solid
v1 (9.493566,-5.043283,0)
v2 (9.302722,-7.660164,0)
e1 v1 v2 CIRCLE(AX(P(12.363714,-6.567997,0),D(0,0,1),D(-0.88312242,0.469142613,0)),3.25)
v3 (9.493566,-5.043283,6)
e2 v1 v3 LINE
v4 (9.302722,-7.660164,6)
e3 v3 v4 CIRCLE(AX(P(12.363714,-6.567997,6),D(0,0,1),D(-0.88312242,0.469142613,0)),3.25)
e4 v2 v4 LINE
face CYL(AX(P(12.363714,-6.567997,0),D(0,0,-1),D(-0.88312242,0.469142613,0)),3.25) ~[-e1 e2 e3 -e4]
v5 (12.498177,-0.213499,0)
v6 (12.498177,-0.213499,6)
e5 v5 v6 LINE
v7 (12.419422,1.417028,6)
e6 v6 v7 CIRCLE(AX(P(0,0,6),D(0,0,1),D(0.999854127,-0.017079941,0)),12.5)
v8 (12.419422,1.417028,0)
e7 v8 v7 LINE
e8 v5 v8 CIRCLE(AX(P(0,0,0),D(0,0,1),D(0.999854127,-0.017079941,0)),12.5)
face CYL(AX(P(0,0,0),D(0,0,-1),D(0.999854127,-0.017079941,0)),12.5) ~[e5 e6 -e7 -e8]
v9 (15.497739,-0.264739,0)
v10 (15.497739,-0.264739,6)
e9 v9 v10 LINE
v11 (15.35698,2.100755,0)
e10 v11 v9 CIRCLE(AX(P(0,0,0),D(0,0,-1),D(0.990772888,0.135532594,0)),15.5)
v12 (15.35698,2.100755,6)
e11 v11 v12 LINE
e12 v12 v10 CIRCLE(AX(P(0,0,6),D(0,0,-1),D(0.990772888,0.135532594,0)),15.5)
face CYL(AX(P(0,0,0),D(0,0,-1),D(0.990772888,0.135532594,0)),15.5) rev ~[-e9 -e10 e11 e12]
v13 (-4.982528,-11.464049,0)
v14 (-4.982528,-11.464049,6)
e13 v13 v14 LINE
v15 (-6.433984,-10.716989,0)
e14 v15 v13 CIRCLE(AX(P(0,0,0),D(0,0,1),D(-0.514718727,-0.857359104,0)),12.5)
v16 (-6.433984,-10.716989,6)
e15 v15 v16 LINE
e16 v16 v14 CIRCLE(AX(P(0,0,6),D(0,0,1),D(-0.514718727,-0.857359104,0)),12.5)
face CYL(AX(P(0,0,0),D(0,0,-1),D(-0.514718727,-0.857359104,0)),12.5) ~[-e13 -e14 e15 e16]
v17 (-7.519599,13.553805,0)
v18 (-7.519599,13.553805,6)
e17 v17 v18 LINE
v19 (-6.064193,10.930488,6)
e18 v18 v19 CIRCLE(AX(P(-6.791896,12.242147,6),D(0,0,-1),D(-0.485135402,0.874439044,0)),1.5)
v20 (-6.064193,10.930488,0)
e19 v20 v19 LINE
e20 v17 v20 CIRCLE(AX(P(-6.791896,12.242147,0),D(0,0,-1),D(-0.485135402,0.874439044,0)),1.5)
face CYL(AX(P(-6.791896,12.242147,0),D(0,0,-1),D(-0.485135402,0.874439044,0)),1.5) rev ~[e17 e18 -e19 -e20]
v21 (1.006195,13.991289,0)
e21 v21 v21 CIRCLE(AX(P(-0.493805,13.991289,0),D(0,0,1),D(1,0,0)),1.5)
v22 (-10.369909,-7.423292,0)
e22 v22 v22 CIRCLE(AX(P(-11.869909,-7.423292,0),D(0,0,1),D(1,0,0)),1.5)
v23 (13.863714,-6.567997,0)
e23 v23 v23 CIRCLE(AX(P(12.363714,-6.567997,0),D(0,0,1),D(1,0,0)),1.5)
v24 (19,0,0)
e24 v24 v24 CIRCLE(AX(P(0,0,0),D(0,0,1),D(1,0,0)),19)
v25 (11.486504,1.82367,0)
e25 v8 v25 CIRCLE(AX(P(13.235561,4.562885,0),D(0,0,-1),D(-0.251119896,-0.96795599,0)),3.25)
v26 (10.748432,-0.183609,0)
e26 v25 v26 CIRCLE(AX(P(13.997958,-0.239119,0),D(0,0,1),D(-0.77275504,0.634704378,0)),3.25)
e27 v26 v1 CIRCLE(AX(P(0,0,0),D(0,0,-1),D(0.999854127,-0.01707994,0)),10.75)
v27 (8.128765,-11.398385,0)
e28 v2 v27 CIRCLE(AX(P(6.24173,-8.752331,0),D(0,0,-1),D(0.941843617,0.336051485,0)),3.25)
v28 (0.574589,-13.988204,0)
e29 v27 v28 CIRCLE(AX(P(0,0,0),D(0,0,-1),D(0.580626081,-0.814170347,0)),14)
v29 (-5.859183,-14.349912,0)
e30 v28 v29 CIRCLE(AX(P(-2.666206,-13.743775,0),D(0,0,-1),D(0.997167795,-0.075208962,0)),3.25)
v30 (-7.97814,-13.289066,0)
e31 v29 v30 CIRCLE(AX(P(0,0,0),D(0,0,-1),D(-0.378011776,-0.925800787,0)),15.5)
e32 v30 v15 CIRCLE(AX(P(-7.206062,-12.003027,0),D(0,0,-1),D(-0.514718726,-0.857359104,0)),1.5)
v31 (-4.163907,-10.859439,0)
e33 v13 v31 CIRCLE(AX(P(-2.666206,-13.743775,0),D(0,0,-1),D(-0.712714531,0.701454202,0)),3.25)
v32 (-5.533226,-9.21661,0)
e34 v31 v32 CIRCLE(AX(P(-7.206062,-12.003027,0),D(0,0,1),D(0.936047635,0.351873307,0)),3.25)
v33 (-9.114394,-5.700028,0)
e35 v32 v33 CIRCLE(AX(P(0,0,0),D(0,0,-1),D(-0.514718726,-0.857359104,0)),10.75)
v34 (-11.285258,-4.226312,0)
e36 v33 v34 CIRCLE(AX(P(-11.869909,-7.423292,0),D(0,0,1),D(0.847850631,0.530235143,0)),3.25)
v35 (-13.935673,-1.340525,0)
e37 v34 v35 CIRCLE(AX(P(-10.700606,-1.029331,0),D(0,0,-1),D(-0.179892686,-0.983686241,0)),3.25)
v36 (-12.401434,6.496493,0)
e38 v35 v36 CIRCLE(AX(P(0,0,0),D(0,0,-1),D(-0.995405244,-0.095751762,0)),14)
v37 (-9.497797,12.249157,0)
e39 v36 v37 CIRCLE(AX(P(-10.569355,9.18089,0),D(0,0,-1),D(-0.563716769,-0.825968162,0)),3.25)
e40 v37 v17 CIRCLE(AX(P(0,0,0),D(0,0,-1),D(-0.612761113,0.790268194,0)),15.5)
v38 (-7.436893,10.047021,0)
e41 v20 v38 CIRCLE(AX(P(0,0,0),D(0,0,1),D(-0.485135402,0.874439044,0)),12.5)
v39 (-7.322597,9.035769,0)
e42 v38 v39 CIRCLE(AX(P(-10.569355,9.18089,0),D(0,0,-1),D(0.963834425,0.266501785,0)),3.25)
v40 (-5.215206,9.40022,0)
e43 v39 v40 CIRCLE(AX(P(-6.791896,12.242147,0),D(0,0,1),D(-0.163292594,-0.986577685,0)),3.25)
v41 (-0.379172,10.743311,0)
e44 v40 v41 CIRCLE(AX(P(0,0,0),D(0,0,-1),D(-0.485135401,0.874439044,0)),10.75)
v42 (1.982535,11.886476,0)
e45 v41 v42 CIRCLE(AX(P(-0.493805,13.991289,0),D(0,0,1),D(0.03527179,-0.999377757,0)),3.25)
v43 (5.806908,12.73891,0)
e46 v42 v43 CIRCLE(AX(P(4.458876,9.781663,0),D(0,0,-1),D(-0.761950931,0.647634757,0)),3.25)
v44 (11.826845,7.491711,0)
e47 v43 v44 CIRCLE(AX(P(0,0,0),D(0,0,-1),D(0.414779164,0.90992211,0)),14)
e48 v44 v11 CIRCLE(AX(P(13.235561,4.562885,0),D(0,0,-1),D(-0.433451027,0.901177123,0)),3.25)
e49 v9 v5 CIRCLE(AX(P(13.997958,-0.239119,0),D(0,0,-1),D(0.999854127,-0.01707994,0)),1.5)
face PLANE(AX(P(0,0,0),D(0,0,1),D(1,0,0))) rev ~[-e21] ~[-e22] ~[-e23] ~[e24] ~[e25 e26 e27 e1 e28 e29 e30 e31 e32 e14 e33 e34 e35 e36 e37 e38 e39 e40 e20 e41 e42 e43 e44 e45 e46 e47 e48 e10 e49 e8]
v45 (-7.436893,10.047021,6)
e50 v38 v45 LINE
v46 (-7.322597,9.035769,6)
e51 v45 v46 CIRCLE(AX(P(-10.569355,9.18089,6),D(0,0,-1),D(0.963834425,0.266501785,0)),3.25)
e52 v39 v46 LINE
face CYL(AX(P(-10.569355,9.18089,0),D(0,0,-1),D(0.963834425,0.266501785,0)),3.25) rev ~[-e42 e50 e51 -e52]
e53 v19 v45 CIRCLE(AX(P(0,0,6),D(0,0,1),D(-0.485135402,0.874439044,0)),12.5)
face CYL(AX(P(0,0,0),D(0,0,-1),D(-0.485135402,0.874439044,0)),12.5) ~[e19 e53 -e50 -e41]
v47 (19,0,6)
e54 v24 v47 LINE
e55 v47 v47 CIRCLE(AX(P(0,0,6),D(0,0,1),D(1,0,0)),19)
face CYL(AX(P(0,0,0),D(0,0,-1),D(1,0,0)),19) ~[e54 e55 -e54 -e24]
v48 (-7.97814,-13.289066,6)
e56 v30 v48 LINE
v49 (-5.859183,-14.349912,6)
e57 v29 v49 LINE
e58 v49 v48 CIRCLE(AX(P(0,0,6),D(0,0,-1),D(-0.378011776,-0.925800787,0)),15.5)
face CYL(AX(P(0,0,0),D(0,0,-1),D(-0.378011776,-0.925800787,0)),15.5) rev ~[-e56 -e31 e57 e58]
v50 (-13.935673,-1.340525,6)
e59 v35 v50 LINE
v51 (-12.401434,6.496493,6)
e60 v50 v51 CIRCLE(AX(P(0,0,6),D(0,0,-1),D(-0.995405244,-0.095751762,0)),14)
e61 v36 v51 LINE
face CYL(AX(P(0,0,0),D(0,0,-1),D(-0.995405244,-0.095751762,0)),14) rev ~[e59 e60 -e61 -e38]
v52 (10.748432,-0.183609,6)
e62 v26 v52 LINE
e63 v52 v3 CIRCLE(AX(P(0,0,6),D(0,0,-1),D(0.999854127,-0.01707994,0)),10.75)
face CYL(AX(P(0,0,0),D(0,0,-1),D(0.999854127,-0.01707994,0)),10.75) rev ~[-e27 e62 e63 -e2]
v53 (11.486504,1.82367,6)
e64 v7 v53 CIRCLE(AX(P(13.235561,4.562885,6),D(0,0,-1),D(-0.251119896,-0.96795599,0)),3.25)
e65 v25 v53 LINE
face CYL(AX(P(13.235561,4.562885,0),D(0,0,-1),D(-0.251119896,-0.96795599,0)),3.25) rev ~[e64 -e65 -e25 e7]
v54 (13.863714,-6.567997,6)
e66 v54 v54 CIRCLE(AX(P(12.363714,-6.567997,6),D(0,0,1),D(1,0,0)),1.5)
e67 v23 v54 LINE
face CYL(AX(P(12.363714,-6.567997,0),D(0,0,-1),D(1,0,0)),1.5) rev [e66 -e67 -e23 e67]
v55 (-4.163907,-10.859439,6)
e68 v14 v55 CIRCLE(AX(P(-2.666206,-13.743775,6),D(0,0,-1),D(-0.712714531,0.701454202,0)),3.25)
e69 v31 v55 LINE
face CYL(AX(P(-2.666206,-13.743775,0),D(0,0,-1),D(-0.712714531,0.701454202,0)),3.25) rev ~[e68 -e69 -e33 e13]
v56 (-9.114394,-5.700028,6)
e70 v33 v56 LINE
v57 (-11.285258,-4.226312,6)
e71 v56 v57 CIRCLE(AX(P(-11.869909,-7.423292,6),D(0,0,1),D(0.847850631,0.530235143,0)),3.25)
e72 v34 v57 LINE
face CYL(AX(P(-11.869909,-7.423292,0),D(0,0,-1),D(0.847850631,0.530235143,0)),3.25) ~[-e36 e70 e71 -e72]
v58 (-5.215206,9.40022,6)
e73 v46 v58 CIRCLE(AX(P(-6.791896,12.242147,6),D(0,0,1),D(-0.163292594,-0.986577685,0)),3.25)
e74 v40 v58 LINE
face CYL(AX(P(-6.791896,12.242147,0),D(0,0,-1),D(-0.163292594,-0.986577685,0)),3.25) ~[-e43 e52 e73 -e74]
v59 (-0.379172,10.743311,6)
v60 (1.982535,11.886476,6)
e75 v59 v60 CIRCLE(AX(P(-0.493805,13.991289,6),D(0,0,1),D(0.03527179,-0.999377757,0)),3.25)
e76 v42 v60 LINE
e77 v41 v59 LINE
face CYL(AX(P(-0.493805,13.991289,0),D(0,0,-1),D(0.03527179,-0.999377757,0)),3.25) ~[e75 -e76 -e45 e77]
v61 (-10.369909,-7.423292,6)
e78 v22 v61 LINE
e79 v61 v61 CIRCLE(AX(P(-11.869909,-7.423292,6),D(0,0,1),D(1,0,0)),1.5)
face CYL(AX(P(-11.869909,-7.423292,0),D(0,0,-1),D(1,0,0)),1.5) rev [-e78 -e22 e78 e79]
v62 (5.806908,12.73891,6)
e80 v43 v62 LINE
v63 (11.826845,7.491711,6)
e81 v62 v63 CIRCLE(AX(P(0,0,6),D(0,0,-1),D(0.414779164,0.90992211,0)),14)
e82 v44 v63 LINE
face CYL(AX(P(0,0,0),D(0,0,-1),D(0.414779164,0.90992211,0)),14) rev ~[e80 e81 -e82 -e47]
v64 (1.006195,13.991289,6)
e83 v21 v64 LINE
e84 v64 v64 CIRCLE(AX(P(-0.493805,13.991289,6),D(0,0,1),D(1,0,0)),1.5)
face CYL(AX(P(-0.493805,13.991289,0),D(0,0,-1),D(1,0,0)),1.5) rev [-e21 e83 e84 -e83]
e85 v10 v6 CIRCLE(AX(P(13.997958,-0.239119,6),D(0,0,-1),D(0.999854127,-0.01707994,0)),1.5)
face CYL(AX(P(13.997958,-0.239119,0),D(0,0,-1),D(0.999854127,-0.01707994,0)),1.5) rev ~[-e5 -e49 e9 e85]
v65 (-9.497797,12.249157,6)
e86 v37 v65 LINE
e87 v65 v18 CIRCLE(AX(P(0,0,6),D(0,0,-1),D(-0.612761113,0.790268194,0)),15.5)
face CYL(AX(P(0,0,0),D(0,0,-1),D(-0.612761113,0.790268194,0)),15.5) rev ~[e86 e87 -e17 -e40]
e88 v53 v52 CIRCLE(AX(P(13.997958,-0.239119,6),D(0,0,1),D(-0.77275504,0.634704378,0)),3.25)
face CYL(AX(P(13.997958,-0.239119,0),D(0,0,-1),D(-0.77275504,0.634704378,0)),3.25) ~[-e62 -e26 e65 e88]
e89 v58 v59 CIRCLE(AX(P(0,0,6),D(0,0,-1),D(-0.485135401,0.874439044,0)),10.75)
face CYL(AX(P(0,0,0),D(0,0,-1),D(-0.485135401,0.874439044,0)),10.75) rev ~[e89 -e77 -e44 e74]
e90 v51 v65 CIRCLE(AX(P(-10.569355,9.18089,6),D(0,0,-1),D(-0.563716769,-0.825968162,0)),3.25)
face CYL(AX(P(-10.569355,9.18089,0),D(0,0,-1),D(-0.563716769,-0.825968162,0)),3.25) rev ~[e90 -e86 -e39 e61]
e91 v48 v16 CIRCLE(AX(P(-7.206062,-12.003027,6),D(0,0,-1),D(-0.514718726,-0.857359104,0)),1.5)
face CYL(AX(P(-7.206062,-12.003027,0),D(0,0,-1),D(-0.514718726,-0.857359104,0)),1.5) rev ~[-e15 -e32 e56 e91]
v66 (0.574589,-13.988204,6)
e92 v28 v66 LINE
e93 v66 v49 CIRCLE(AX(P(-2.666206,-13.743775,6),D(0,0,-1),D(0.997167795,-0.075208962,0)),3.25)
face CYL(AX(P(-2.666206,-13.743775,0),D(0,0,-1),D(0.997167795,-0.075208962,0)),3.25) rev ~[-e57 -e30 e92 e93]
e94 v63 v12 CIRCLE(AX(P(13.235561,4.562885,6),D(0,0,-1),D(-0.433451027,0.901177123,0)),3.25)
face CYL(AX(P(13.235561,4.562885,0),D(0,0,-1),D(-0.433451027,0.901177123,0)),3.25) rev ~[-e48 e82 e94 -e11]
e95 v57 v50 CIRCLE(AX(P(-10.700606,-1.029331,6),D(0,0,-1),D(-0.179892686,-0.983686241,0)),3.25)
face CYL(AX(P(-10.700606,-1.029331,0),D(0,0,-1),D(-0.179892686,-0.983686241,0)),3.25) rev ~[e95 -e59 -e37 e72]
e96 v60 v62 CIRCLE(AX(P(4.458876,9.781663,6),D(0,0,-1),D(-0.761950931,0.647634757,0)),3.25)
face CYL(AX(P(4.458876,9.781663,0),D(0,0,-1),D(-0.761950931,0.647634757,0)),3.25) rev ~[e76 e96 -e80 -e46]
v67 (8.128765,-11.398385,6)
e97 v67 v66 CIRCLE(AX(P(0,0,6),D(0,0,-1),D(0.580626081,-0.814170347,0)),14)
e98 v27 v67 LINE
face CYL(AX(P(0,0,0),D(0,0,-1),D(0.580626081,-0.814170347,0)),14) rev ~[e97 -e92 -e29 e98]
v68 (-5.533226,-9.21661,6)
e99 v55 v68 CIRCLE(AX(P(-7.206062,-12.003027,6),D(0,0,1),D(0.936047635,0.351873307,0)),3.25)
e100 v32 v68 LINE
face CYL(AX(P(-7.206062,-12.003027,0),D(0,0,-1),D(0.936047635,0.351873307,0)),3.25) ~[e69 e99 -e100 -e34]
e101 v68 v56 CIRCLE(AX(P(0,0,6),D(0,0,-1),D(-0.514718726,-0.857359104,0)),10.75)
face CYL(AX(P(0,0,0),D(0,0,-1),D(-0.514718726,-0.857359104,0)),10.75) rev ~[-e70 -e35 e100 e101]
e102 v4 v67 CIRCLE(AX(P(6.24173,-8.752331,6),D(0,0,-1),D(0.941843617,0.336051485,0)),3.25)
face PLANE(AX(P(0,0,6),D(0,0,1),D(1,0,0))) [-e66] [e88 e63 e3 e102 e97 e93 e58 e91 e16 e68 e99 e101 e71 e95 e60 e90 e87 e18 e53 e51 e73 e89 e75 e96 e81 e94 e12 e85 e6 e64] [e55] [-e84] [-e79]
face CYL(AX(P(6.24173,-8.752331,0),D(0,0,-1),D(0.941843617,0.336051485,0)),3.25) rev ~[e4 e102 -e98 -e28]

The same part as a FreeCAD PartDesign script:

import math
import FreeCAD as App
import Part
import Sketcher
from FreeCAD import Vector

doc = App.newDocument("Part")
body = doc.addObject("PartDesign::Body", "Body")

# Sketch on XY plane
sketch1 = doc.addObject("Sketcher::SketchObject", "Sketch")
body.addObject(sketch1)
sketch1.AttachmentSupport = (doc.XY_Plane, [""])
sketch1.MapMode = "FlatFace"
sketch1.addGeometry(Part.Circle(Vector(0, 0, 0), Vector(0, 0, 1), 19), False)
sketch1.addGeometry(Part.Circle(Vector(-11.9, -7.4, 0), Vector(0, 0, 1), 1.5), False)
sketch1.addGeometry(Part.ArcOfCircle(Part.Circle(Vector(0, 0, 0), Vector(0, 0, 1), 10.8), math.radians(92), math.radians(119)), False)
sketch1.addGeometry(Part.ArcOfCircle(Part.Circle(Vector(-0.5, 14, 0), Vector(0, 0, 1), 3.3), math.radians(-88), math.radians(-40)), False)
sketch1.addGeometry(Part.ArcOfCircle(Part.Circle(Vector(4.5, 9.8, 0), Vector(0, 0, 1), 3.3), math.radians(65), math.radians(140)), False)
sketch1.addGeometry(Part.ArcOfCircle(Part.Circle(Vector(0, 0, 0), Vector(0, 0, 1), 14), math.radians(32), math.radians(65)), False)
sketch1.addGeometry(Part.ArcOfCircle(Part.Circle(Vector(13.2, 4.6, 0), Vector(0, 0, 1), 3.2), math.radians(-49), math.radians(116)), False)
sketch1.addGeometry(Part.ArcOfCircle(Part.Circle(Vector(0, 0, 0), Vector(0, 0, 1), 15.5), math.radians(-0.98), math.radians(7.79)), False)
sketch1.addGeometry(Part.ArcOfCircle(Part.Circle(Vector(14, -0.2, 0), Vector(0, 0, 1), 1.5), math.radians(179), math.radians(359)), False)
sketch1.addGeometry(Part.ArcOfCircle(Part.Circle(Vector(0, 0, 0), Vector(0, 0, 1), 12.5), math.radians(-0.98), math.radians(6.51)), False)
sketch1.addGeometry(Part.ArcOfCircle(Part.Circle(Vector(13.2, 4.6, 0), Vector(0, 0, 1), 3.3), math.radians(-122.56), math.radians(-104.54)), False)
sketch1.addGeometry(Part.ArcOfCircle(Part.Circle(Vector(14, -0.2, 0), Vector(0, 0, 1), 3.2), math.radians(141), math.radians(179)), False)
sketch1.addGeometry(Part.ArcOfCircle(Part.Circle(Vector(0, 0, 0), Vector(0, 0, 1), 10.7), math.radians(-28), math.radians(-1)), False)
sketch1.addGeometry(Part.ArcOfCircle(Part.Circle(Vector(12.4, -6.6, 0), Vector(0, 0, 1), 3.3), math.radians(152), math.radians(200)), False)
sketch1.addGeometry(Part.ArcOfCircle(Part.Circle(Vector(6.2, -8.8, 0), Vector(0, 0, 1), 3.2), math.radians(-55), math.radians(20)), False)
sketch1.addGeometry(Part.ArcOfCircle(Part.Circle(Vector(0, 0, 0), Vector(0, 0, 1), 14), math.radians(-88), math.radians(-55)), False)
sketch1.addGeometry(Part.ArcOfCircle(Part.Circle(Vector(-2.7, -13.7, 0), Vector(0, 0, 1), 3.2), math.radians(-169), math.radians(-4)), False)
sketch1.addGeometry(Part.ArcOfCircle(Part.Circle(Vector(0, 0, 0), Vector(0, 0, 1), 15.5), math.radians(-120.98), math.radians(-112.21)), False)
sketch1.addGeometry(Part.ArcOfCircle(Part.Circle(Vector(-7.2, -12, 0), Vector(0, 0, 1), 1.5), math.radians(59), math.radians(239)), False)
sketch1.addGeometry(Part.ArcOfCircle(Part.Circle(Vector(0, 0, 0), Vector(0, 0, 1), 12.5), math.radians(-120.98), math.radians(-113.49)), False)
sketch1.addGeometry(Part.ArcOfCircle(Part.Circle(Vector(-2.7, -13.7, 0), Vector(0, 0, 1), 3.2), math.radians(117.44), math.radians(135.46)), False)
sketch1.addGeometry(Part.ArcOfCircle(Part.Circle(Vector(-7.2, -12, 0), Vector(0, 0, 1), 3.2), math.radians(21), math.radians(59)), False)
sketch1.addGeometry(Part.ArcOfCircle(Part.Circle(Vector(0, 0, 0), Vector(0, 0, 1), 10.8), math.radians(-148), math.radians(-121)), False)
sketch1.addGeometry(Part.ArcOfCircle(Part.Circle(Vector(-11.9, -7.4, 0), Vector(0, 0, 1), 3.2), math.radians(32), math.radians(80)), False)
sketch1.addGeometry(Part.ArcOfCircle(Part.Circle(Vector(-10.7, -1, 0), Vector(0, 0, 1), 3.2), math.radians(-175), math.radians(-100)), False)
sketch1.addGeometry(Part.ArcOfCircle(Part.Circle(Vector(0, 0, 0), Vector(0, 0, 1), 14), math.radians(152), math.radians(185)), False)
sketch1.addGeometry(Part.ArcOfCircle(Part.Circle(Vector(-10.6, 9.2, 0), Vector(0, 0, 1), 3.2), math.radians(71), math.radians(236)), False)
sketch1.addGeometry(Part.ArcOfCircle(Part.Circle(Vector(0, 0, 0), Vector(0, 0, 1), 15.5), math.radians(119.02), math.radians(127.79)), False)
sketch1.addGeometry(Part.ArcOfCircle(Part.Circle(Vector(-6.8, 12.2, 0), Vector(0, 0, 1), 1.5), math.radians(-61), math.radians(119)), False)
sketch1.addGeometry(Part.ArcOfCircle(Part.Circle(Vector(0, 0, 0), Vector(0, 0, 1), 12.5), math.radians(119.02), math.radians(126.51)), False)
sketch1.addGeometry(Part.ArcOfCircle(Part.Circle(Vector(-10.6, 9.2, 0), Vector(0, 0, 1), 3.3), math.radians(-2.56), math.radians(15.46)), False)
sketch1.addGeometry(Part.ArcOfCircle(Part.Circle(Vector(-6.8, 12.2, 0), Vector(0, 0, 1), 3.2), math.radians(-99), math.radians(-61)), False)
sketch1.addGeometry(Part.Circle(Vector(12.4, -6.6, 0), Vector(0, 0, 1), 1.5), False)
sketch1.addGeometry(Part.Circle(Vector(-0.5, 14, 0), Vector(0, 0, 1), 1.5), False)
sketch1.addConstraint(Sketcher.Constraint("Tangent", 2, 1, 3, 1))
sketch1.addConstraint(Sketcher.Constraint("Tangent", 3, 2, 4, 2))
sketch1.addConstraint(Sketcher.Constraint("Tangent", 4, 1, 5, 2))
sketch1.addConstraint(Sketcher.Constraint("Coincident", 5, 1, 6, 2))
sketch1.addConstraint(Sketcher.Constraint("Coincident", 6, 1, 7, 2))
sketch1.addConstraint(Sketcher.Constraint("Tangent", 7, 1, 8, 2))
sketch1.addConstraint(Sketcher.Constraint("Tangent", 8, 1, 9, 1))
sketch1.addConstraint(Sketcher.Constraint("Coincident", 9, 2, 10, 2))
sketch1.addConstraint(Sketcher.Constraint("Coincident", 10, 1, 11, 1))
sketch1.addConstraint(Sketcher.Constraint("Tangent", 11, 2, 12, 2))
sketch1.addConstraint(Sketcher.Constraint("Tangent", 12, 1, 13, 1))
sketch1.addConstraint(Sketcher.Constraint("Tangent", 13, 2, 14, 2))
sketch1.addConstraint(Sketcher.Constraint("Tangent", 14, 1, 15, 2))
sketch1.addConstraint(Sketcher.Constraint("Coincident", 15, 1, 16, 2))
sketch1.addConstraint(Sketcher.Constraint("Coincident", 16, 1, 17, 2))
sketch1.addConstraint(Sketcher.Constraint("Tangent", 17, 1, 18, 2))
sketch1.addConstraint(Sketcher.Constraint("Tangent", 18, 1, 19, 1))
sketch1.addConstraint(Sketcher.Constraint("Coincident", 19, 2, 20, 2))
sketch1.addConstraint(Sketcher.Constraint("Coincident", 20, 1, 21, 1))
sketch1.addConstraint(Sketcher.Constraint("Tangent", 21, 2, 22, 2))
sketch1.addConstraint(Sketcher.Constraint("Tangent", 22, 1, 23, 1))
sketch1.addConstraint(Sketcher.Constraint("Tangent", 23, 2, 24, 2))
sketch1.addConstraint(Sketcher.Constraint("Tangent", 24, 1, 25, 2))
sketch1.addConstraint(Sketcher.Constraint("Coincident", 25, 1, 26, 2))
sketch1.addConstraint(Sketcher.Constraint("Coincident", 26, 1, 27, 2))
sketch1.addConstraint(Sketcher.Constraint("Tangent", 27, 1, 28, 2))
sketch1.addConstraint(Sketcher.Constraint("Tangent", 28, 1, 29, 1))
sketch1.addConstraint(Sketcher.Constraint("Coincident", 29, 2, 30, 2))
sketch1.addConstraint(Sketcher.Constraint("Coincident", 30, 1, 31, 1))
sketch1.addConstraint(Sketcher.Constraint("Tangent", 31, 2, 2, 2))
sketch1.addConstraint(Sketcher.Constraint("Coincident", 0, 3, -1, 1))
sketch1.addConstraint(Sketcher.Constraint("Coincident", 2, 3, -1, 1))
sketch1.addConstraint(Sketcher.Constraint("Coincident", 5, 3, -1, 1))
sketch1.addConstraint(Sketcher.Constraint("Coincident", 7, 3, -1, 1))
sketch1.addConstraint(Sketcher.Constraint("Coincident", 9, 3, -1, 1))
sketch1.addConstraint(Sketcher.Constraint("Coincident", 12, 3, -1, 1))
sketch1.addConstraint(Sketcher.Constraint("Coincident", 15, 3, -1, 1))
sketch1.addConstraint(Sketcher.Constraint("Coincident", 17, 3, -1, 1))
sketch1.addConstraint(Sketcher.Constraint("Coincident", 19, 3, -1, 1))
sketch1.addConstraint(Sketcher.Constraint("Coincident", 22, 3, -1, 1))
sketch1.addConstraint(Sketcher.Constraint("Coincident", 25, 3, -1, 1))
sketch1.addConstraint(Sketcher.Constraint("Coincident", 27, 3, -1, 1))
sketch1.addConstraint(Sketcher.Constraint("Coincident", 29, 3, -1, 1))
sketch1.addConstraint(Sketcher.Constraint("Coincident", 10, 3, 6, 3))
sketch1.addConstraint(Sketcher.Constraint("Coincident", 11, 3, 8, 3))
sketch1.addConstraint(Sketcher.Constraint("Coincident", 20, 3, 16, 3))
sketch1.addConstraint(Sketcher.Constraint("Coincident", 21, 3, 18, 3))
sketch1.addConstraint(Sketcher.Constraint("Coincident", 23, 3, 1, 3))
sketch1.addConstraint(Sketcher.Constraint("Coincident", 30, 3, 26, 3))
sketch1.addConstraint(Sketcher.Constraint("Coincident", 31, 3, 28, 3))
sketch1.addConstraint(Sketcher.Constraint("Coincident", 32, 3, 13, 3))
sketch1.addConstraint(Sketcher.Constraint("Coincident", 33, 3, 3, 3))
sketch1.addConstraint(Sketcher.Constraint("Equal", 3, 4))
sketch1.addConstraint(Sketcher.Constraint("Equal", 4, 6))
sketch1.addConstraint(Sketcher.Constraint("Equal", 1, 8))
sketch1.addConstraint(Sketcher.Constraint("Equal", 6, 10))
sketch1.addConstraint(Sketcher.Constraint("Equal", 10, 11))
sketch1.addConstraint(Sketcher.Constraint("Equal", 2, 12))
sketch1.addConstraint(Sketcher.Constraint("Equal", 11, 13))
sketch1.addConstraint(Sketcher.Constraint("Equal", 13, 14))
sketch1.addConstraint(Sketcher.Constraint("Equal", 5, 15))
sketch1.addConstraint(Sketcher.Constraint("Equal", 14, 16))
sketch1.addConstraint(Sketcher.Constraint("Equal", 7, 17))
sketch1.addConstraint(Sketcher.Constraint("Equal", 8, 18))
sketch1.addConstraint(Sketcher.Constraint("Equal", 16, 20))
sketch1.addConstraint(Sketcher.Constraint("Equal", 20, 21))
sketch1.addConstraint(Sketcher.Constraint("Equal", 21, 23))
sketch1.addConstraint(Sketcher.Constraint("Equal", 23, 24))
sketch1.addConstraint(Sketcher.Constraint("Equal", 15, 25))
sketch1.addConstraint(Sketcher.Constraint("Equal", 24, 26))
sketch1.addConstraint(Sketcher.Constraint("Equal", 17, 27))
sketch1.addConstraint(Sketcher.Constraint("Equal", 18, 28))
sketch1.addConstraint(Sketcher.Constraint("Equal", 26, 30))
sketch1.addConstraint(Sketcher.Constraint("Equal", 28, 32))
sketch1.addConstraint(Sketcher.Constraint("Equal", 32, 33))
sketch1.addConstraint(Sketcher.Constraint("Diameter", 0, 38.0))
sketch1.addConstraint(Sketcher.Constraint("Diameter", 1, 3.0))
sketch1.addConstraint(Sketcher.Constraint("Radius", 5, 14.0))
sketch1.addConstraint(Sketcher.Constraint("Radius", 7, 15.5))
sketch1.addConstraint(Sketcher.Constraint("Radius", 2, 10.75))
sketch1.addConstraint(Sketcher.Constraint("DistanceY", 8, 1, -1, 1, 0.213499))
sketch1.addConstraint(Sketcher.Constraint("DistanceX", 27, 1, -1, 1, 7.519599))
sketch1.addConstraint(Sketcher.Constraint("DistanceX", 1, 3, -1, 1, 11.869909))
sketch1.addConstraint(Sketcher.Constraint("DistanceY", -1, 1, 3, 3, 13.991289))
sketch1.addConstraint(Sketcher.Constraint("DistanceX", -1, 1, 6, 3, 13.235561))
sketch1.addConstraint(Sketcher.Constraint("DistanceX", -1, 1, 14, 3, 6.24173))
sketch1.addConstraint(Sketcher.Constraint("DistanceY", -1, 1, 26, 3, 9.18089))
sketch1.addConstraint(Sketcher.Constraint("DistanceY", -1, 1, 5, 1, 7.491711))
sketch1.addConstraint(Sketcher.Constraint("DistanceX", -1, 1, 15, 1, 0.574589))
sketch1.addConstraint(Sketcher.Constraint("DistanceX", 17, 1, -1, 1, 7.97814))
sketch1.addConstraint(Sketcher.Constraint("DistanceX", 19, 2, -1, 1, 4.982528))
sketch1.addConstraint(Sketcher.Constraint("DistanceY", -1, 1, 29, 2, 10.047021))
pad1 = doc.addObject("PartDesign::Pad", "Pad")
body.addObject(pad1)
pad1.Profile = sketch1
pad1.Length = 6

doc.recompute()
